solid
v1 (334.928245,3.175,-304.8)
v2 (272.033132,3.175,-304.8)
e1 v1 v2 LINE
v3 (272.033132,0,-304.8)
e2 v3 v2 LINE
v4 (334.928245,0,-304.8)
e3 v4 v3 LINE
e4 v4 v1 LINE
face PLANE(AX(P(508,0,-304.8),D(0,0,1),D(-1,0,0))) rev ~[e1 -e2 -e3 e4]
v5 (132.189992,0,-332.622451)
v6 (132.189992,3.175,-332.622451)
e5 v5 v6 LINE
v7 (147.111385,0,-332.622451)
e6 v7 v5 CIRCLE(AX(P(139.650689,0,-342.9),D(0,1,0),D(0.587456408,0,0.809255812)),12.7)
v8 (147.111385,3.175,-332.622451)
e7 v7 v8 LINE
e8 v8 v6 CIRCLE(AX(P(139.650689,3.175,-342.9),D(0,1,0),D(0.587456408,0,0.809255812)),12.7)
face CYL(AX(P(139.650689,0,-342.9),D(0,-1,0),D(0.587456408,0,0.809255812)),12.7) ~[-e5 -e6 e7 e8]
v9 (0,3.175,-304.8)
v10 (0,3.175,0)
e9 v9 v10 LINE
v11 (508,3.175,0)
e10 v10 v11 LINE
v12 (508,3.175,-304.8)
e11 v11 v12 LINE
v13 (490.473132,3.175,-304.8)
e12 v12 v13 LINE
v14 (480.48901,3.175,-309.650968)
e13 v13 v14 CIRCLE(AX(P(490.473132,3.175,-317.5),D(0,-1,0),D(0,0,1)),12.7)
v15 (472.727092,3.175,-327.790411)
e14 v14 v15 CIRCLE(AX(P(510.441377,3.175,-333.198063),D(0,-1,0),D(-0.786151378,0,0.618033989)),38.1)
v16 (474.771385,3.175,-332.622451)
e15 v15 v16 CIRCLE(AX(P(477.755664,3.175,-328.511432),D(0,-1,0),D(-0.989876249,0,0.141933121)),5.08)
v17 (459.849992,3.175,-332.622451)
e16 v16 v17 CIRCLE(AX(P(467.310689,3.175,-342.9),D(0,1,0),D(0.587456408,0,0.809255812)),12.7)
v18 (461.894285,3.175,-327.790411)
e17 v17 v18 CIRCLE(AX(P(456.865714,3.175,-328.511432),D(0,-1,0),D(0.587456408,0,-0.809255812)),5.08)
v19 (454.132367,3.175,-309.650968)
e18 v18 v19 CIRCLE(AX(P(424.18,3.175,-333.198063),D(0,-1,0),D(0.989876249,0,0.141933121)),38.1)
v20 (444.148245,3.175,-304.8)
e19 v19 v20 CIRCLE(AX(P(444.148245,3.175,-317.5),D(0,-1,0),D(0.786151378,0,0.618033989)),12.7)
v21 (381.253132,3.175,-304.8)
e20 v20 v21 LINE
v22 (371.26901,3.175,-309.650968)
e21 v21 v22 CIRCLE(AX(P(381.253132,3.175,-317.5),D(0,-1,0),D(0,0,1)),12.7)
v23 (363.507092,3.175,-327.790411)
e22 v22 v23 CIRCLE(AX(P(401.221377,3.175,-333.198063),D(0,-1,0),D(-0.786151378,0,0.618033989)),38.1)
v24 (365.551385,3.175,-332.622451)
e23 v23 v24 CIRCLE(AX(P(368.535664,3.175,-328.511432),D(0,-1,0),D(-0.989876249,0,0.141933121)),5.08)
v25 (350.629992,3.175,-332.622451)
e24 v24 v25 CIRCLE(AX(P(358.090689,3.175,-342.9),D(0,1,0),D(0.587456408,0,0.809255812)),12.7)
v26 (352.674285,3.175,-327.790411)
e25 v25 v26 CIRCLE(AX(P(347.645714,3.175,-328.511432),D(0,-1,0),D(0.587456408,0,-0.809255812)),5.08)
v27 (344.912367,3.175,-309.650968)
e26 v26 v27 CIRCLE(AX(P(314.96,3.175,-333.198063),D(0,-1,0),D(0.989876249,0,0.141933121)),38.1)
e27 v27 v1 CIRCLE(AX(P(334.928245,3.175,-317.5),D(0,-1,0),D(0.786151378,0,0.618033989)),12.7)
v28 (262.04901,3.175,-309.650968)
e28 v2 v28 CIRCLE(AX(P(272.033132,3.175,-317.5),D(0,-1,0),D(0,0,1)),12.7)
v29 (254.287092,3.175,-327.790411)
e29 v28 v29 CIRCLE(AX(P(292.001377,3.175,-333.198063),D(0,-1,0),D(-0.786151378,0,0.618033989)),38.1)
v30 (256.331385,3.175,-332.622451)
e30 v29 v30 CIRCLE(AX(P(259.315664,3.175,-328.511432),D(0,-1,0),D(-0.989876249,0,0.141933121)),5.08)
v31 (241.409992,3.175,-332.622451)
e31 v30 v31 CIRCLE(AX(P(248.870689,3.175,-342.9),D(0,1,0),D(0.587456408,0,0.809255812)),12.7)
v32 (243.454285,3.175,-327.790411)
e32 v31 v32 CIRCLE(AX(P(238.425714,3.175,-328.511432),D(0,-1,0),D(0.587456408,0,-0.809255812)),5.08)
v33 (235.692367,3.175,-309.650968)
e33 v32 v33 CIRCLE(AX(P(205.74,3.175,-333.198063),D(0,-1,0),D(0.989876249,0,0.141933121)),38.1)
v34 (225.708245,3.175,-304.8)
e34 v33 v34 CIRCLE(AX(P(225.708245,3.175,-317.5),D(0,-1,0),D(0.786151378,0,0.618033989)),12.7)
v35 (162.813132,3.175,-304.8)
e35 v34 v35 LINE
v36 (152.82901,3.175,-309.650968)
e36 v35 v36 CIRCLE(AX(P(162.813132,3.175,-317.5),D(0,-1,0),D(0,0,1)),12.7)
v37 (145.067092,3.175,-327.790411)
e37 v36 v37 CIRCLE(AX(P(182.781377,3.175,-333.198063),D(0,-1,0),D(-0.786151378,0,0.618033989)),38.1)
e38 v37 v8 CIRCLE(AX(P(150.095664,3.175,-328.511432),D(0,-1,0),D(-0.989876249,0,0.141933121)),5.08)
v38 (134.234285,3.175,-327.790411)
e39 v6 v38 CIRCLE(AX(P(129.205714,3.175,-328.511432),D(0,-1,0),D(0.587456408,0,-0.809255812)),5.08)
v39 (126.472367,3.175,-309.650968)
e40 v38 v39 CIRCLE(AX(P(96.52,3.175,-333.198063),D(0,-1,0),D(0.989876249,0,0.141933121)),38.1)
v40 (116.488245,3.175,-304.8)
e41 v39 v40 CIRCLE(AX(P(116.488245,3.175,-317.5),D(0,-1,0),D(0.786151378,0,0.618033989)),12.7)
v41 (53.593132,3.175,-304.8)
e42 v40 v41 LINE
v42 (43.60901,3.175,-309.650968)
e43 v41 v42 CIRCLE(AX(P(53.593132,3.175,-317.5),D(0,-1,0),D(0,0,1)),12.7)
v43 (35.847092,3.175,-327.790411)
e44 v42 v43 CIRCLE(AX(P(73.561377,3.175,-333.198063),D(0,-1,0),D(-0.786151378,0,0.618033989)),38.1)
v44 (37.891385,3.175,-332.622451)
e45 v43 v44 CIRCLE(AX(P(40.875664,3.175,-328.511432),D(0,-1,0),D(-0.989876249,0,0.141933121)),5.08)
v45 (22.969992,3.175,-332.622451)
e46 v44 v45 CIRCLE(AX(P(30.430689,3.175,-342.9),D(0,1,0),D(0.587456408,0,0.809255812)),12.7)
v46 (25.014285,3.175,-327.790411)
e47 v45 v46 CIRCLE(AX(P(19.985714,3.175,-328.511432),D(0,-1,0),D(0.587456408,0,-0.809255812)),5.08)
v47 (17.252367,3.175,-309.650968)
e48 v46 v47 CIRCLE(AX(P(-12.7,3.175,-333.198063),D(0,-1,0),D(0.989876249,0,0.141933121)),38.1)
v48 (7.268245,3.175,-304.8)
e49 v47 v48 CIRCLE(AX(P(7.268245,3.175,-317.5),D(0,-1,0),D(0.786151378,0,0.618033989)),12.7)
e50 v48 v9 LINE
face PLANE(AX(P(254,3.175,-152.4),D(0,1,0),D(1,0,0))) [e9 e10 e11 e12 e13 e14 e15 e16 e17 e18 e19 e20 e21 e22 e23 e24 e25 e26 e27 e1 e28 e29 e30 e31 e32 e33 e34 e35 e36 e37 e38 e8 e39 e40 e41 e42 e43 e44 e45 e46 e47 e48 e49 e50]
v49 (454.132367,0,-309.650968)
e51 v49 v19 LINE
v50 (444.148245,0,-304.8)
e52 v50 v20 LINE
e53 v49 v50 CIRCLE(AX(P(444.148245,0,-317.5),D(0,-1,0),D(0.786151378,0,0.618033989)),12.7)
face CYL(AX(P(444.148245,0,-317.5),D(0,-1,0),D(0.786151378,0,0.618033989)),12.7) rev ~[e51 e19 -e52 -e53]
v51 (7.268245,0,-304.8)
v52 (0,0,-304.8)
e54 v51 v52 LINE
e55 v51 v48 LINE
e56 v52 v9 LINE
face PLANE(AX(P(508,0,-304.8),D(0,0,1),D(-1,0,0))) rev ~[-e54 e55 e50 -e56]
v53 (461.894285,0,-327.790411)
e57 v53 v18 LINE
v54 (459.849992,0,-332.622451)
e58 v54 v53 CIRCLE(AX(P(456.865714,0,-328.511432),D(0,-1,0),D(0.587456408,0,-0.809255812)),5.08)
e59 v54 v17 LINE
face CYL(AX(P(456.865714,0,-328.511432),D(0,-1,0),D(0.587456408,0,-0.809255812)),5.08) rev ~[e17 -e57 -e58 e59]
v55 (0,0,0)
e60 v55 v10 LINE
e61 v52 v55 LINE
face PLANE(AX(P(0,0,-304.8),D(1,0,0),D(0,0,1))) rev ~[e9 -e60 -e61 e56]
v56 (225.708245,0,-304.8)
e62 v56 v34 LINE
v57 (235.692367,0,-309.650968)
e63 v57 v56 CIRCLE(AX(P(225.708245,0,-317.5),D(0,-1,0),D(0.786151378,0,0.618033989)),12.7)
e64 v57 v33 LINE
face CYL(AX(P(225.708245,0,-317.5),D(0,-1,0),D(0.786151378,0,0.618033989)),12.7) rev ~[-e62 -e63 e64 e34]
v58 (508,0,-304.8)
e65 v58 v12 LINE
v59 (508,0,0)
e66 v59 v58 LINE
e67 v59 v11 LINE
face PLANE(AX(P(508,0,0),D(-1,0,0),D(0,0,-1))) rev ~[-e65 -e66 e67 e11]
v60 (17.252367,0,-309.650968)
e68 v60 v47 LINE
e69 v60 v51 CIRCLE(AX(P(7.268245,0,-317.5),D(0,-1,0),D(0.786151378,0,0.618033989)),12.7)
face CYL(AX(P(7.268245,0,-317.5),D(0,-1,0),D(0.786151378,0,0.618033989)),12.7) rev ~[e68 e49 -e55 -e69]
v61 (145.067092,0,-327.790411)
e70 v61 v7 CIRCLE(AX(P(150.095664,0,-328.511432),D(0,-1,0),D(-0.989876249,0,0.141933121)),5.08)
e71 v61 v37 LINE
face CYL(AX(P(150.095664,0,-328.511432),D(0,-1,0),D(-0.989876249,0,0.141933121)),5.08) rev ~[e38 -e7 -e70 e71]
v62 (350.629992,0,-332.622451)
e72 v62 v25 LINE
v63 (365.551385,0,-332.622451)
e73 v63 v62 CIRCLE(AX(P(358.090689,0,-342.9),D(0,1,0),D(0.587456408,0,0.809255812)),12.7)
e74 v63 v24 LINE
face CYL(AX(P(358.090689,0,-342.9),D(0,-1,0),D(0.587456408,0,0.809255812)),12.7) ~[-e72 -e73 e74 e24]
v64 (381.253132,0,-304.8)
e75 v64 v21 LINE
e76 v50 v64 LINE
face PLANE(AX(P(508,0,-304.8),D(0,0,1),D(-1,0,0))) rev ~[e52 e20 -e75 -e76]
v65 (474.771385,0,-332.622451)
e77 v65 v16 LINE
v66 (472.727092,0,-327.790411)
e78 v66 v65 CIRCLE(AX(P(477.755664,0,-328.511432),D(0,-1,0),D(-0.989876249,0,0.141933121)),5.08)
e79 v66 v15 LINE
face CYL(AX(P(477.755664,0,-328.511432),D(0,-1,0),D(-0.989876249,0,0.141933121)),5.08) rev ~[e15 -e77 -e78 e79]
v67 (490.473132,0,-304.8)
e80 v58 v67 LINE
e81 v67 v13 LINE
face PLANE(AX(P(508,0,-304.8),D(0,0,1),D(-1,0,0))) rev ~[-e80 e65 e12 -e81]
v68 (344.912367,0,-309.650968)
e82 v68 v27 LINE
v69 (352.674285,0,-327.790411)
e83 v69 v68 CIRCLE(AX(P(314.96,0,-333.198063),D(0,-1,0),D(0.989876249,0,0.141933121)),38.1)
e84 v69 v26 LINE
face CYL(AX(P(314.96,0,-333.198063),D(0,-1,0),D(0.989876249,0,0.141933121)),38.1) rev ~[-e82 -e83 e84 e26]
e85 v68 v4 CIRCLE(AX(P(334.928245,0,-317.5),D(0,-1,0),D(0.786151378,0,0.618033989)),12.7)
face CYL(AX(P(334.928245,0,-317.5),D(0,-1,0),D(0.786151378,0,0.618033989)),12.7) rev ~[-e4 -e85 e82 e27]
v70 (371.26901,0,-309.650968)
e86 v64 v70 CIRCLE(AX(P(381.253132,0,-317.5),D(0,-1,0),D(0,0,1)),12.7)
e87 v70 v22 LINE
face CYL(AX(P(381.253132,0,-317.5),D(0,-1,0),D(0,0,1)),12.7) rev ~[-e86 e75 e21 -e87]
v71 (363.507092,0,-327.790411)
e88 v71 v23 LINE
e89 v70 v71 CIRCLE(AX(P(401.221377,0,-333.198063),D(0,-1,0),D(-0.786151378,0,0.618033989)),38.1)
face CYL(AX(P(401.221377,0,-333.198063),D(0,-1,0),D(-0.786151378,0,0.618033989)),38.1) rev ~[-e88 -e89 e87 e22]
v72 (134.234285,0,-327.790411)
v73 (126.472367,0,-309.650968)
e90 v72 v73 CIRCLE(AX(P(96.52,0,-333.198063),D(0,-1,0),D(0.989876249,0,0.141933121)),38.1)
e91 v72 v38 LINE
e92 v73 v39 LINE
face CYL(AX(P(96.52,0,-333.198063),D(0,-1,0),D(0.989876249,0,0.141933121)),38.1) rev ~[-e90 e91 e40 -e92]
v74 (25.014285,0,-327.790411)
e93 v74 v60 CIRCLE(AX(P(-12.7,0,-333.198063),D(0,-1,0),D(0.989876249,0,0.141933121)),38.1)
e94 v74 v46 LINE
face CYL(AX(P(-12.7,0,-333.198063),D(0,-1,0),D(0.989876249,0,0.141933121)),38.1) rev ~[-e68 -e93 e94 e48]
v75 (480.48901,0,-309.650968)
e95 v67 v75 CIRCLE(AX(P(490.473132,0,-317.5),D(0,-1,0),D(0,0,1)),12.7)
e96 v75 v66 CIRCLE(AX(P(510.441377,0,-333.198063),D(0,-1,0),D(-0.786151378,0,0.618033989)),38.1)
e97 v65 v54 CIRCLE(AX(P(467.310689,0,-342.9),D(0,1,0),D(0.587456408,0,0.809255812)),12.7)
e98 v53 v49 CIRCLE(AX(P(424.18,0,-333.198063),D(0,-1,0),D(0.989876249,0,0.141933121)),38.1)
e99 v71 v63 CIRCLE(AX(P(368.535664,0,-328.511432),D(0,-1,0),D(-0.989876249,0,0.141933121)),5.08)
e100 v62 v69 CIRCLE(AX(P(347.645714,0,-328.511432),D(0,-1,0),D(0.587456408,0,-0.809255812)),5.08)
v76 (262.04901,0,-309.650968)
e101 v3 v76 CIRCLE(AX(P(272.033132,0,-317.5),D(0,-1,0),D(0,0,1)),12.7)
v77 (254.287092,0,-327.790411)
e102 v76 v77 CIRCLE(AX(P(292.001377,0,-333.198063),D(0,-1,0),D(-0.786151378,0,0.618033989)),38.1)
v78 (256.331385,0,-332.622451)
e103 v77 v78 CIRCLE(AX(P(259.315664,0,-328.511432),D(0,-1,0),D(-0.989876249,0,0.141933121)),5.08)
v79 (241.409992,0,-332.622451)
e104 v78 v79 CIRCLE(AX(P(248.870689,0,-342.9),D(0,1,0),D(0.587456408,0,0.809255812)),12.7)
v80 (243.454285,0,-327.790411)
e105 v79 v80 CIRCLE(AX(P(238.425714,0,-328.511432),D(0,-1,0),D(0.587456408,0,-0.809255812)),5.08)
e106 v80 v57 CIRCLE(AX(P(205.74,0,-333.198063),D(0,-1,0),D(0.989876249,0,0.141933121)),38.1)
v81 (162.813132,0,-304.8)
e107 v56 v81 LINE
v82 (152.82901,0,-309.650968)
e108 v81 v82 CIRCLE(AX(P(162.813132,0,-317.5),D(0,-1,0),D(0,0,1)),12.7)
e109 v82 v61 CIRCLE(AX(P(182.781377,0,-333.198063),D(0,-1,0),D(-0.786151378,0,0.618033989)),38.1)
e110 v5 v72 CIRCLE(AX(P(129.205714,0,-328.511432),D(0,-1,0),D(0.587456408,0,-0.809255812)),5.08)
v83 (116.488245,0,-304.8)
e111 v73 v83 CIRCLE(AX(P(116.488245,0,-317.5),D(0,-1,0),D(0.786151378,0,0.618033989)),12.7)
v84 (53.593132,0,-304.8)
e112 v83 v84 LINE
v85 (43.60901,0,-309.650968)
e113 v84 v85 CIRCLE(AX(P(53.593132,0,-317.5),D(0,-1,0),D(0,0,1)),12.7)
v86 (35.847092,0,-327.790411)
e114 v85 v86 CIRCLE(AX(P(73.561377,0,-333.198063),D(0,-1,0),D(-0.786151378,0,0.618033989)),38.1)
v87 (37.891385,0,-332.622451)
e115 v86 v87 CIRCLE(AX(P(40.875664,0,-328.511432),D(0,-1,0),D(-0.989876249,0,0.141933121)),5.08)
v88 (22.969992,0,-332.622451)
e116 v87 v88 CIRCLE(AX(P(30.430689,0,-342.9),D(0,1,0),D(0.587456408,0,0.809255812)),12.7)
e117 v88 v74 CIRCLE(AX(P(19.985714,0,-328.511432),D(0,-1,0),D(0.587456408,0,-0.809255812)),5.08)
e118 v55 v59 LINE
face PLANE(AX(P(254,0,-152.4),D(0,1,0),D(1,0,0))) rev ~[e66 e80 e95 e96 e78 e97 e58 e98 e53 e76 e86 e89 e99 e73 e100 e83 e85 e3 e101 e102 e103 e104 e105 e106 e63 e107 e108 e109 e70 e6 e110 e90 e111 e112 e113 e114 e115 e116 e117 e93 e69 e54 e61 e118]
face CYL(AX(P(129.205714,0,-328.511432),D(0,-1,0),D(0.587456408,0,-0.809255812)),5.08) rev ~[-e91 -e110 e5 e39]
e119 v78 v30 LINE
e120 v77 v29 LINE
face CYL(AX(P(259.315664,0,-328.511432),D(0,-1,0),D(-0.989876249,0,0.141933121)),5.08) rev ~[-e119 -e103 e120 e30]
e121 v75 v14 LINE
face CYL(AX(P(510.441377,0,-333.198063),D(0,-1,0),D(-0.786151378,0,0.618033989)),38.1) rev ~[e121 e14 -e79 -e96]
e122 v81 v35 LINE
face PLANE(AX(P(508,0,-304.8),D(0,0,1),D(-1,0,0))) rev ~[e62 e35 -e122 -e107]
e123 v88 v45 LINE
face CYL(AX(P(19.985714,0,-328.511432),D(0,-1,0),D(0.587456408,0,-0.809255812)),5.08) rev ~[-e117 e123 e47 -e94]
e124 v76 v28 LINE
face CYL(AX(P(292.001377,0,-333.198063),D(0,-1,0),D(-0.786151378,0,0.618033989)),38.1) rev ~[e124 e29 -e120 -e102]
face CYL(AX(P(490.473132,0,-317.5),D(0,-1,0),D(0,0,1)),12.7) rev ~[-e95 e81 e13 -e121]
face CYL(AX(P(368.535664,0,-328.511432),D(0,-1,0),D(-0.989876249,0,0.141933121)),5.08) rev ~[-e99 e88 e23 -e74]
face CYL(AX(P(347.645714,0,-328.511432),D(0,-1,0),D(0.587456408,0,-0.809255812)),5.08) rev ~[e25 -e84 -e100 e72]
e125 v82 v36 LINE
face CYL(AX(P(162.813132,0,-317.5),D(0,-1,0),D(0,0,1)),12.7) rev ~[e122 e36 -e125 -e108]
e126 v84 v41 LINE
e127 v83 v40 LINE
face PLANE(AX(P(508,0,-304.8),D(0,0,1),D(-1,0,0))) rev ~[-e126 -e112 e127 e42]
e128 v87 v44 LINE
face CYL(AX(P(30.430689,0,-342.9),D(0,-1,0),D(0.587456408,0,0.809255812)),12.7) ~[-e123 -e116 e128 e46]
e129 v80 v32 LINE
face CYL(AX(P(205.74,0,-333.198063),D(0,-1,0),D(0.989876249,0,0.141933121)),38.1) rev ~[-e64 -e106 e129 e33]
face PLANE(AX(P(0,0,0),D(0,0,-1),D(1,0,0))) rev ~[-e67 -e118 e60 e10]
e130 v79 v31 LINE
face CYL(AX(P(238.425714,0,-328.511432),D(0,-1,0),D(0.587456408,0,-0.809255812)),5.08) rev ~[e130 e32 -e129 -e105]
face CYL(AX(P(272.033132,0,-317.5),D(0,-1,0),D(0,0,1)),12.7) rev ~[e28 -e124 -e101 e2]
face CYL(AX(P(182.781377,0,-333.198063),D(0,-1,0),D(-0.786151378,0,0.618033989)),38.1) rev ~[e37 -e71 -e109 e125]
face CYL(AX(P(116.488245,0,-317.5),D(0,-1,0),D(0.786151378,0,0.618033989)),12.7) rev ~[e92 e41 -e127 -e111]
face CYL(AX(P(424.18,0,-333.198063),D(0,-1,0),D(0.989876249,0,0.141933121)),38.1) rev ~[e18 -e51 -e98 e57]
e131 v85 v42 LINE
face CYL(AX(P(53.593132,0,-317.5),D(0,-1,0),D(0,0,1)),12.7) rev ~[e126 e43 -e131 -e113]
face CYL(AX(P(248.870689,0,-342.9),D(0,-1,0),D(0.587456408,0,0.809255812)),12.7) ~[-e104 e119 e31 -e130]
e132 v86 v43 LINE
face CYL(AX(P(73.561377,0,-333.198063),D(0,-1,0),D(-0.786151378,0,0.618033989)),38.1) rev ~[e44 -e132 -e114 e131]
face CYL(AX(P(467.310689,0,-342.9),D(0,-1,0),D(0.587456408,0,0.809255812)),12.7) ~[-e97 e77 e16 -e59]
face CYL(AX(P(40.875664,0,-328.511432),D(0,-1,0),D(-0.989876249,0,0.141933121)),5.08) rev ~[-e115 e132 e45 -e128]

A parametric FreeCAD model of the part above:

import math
import FreeCAD as App
import Part
import Sketcher
Q = App.Units.Quantity

doc = App.newDocument("Part")
params = doc.addObject("Spreadsheet::Sheet", "Params")
for row, (alias, value) in enumerate([
    ("sketch1_width", "20 in"),
    ("sketch1_height", "12 in"),
    ("pad1_length", "0.125 in"),
    ("sketch2_radius", "0.5 in"),
    ("sketch2_radius2", "1.5 in"),
    ("sketch2_radius3", "0.2 in"),
    ("pad2_length", "0.125 in"),
    ("linearpattern_pitch", "4.3 in"),
], start=1):
    params.set(f"A{row}", alias)
    params.set(f"B{row}", "=" + value)
    params.setAlias(f"B{row}", alias)

body = doc.addObject("PartDesign::Body", "Body")

sketch1 = doc.addObject("Sketcher::SketchObject", "Sketch")
body.addObject(sketch1)
sketch1.AttachmentSupport = (doc.XZ_Plane, [""])
sketch1.MapMode = "FlatFace"
sketch1.addGeometry([
    Part.LineSegment(App.Vector(0, -305, 0), App.Vector(0, 0, 0)),
    Part.LineSegment(App.Vector(0, 0, 0), App.Vector(508, 0, 0)),
    Part.LineSegment(App.Vector(508, 0, 0), App.Vector(508, -305, 0)),
    Part.LineSegment(App.Vector(508, -305, 0), App.Vector(0, -305, 0)),
], False)
sketch1.addConstraint([
    Sketcher.Constraint("Coincident", 0, 2, 1, 1),
    Sketcher.Constraint("Coincident", 1, 2, 2, 1),
    Sketcher.Constraint("Coincident", 2, 2, 3, 1),
    Sketcher.Constraint("Coincident", 3, 2, 0, 1),
    Sketcher.Constraint("Vertical", 0),
    Sketcher.Constraint("Horizontal", 1),
    Sketcher.Constraint("Vertical", 2),
    Sketcher.Constraint("Horizontal", 3),
    Sketcher.Constraint("Coincident", 0, 2, -1, 1),
    Sketcher.Constraint("DistanceX", 1, 1, 1, 2, Q("20 in")),
    Sketcher.Constraint("DistanceY", 0, 1, 0, 2, Q("12 in")),
])
sketch1.setExpression("Constraints[9]", "Params.sketch1_width")
sketch1.setExpression("Constraints[10]", "Params.sketch1_height")
pad1 = doc.addObject("PartDesign::Pad", "Pad")
body.addObject(pad1)
pad1.Profile = sketch1
pad1.setExpression("Length", "Params.pad1_length")
pad1.Reversed = True

sketch2 = doc.addObject("Sketcher::SketchObject", "Sketch001")
body.addObject(sketch2)
sketch2.AttachmentSupport = (doc.XZ_Plane, [""])
sketch2.MapMode = "FlatFace"
sketch2.addGeometry([
    Part.ArcOfCircle(Part.Circle(App.Vector(7, -317, 0), App.Vector(0, 0, 1), 13), math.radians(38), math.radians(90)),
    Part.LineSegment(App.Vector(7, -305, 0), App.Vector(54, -305, 0)),
    Part.ArcOfCircle(Part.Circle(App.Vector(54, -317, 0), App.Vector(0, 0, 1), 13), math.radians(90), math.radians(142)),
    Part.ArcOfCircle(Part.Circle(App.Vector(74, -333, 0), App.Vector(0, 0, 1), 38), math.radians(142), math.radians(172)),
    Part.ArcOfCircle(Part.Circle(App.Vector(41, -329, 0), App.Vector(0, 0, 1), 5), math.radians(172), math.radians(234)),
    Part.ArcOfCircle(Part.Circle(App.Vector(30, -343, 0), App.Vector(0, 0, 1), 13), math.radians(126), math.radians(414)),
    Part.ArcOfCircle(Part.Circle(App.Vector(20, -329, 0), App.Vector(0, 0, 1), 5), math.radians(-54), math.radians(8)),
    Part.ArcOfCircle(Part.Circle(App.Vector(-13, -333, 0), App.Vector(0, 0, 1), 38), math.radians(8), math.radians(38)),
], False)
sketch2.addConstraint([
    Sketcher.Constraint("Tangent", 0, 2, 1, 1),
    Sketcher.Constraint("Tangent", 1, 2, 2, 1),
    Sketcher.Constraint("Tangent", 2, 2, 3, 1),
    Sketcher.Constraint("Tangent", 3, 2, 4, 1),
    Sketcher.Constraint("Tangent", 4, 2, 5, 2),
    Sketcher.Constraint("Tangent", 5, 1, 6, 1),
    Sketcher.Constraint("Tangent", 6, 2, 7, 1),
    Sketcher.Constraint("Tangent", 7, 2, 0, 1),
    Sketcher.Constraint("Horizontal", 1),
    Sketcher.Constraint("Equal", 0, 2),
    Sketcher.Constraint("Equal", 2, 5),
    Sketcher.Constraint("Equal", 4, 6),
    Sketcher.Constraint("Equal", 3, 7),
    Sketcher.Constraint("Horizontal", 4, 3, 6, 3),
    Sketcher.Constraint("Horizontal", 3, 3, 7, 3),
    Sketcher.Constraint("Radius", 0, Q("0.5 in")),
    Sketcher.Constraint("Radius", 3, Q("1.5 in")),
    Sketcher.Constraint("Radius", 4, Q("0.2 in")),
    Sketcher.Constraint("DistanceY", 0, 2, -1, 1, Q("12 in")),
    Sketcher.Constraint("DistanceY", 5, 3, 0, 3, Q("1 in")),
    Sketcher.Constraint("DistanceX", 7, 3, -1, 1, Q("0.5 in")),
    Sketcher.Constraint("DistanceX", 5, 1, 3, 2, Q("12.8771 mm")),
    Sketcher.Constraint("DistanceX", 1, 1, 1, 2, Q("46.324887 mm")),
])
sketch2.setExpression("Constraints[15]", "Params.sketch2_radius")
sketch2.setExpression("Constraints[16]", "Params.sketch2_radius2")
sketch2.setExpression("Constraints[17]", "Params.sketch2_radius3")
pad2 = doc.addObject("PartDesign::Pad", "Pad001")
body.addObject(pad2)
pad2.Profile = sketch2
pad2.setExpression("Length", "Params.pad2_length")
pad2.Reversed = True
doc.recompute()

linearpattern = doc.addObject("PartDesign::LinearPattern", "LinearPattern")
body.addObject(linearpattern)
linearpattern.Originals = [pad2]
linearpattern.Direction = (doc.X_Axis, [""])
linearpattern.Mode = "offset"
linearpattern.setExpression("Offset", "Params.linearpattern_pitch")
linearpattern.Occurrences = 5
body.Tip = linearpattern

doc.recompute()
